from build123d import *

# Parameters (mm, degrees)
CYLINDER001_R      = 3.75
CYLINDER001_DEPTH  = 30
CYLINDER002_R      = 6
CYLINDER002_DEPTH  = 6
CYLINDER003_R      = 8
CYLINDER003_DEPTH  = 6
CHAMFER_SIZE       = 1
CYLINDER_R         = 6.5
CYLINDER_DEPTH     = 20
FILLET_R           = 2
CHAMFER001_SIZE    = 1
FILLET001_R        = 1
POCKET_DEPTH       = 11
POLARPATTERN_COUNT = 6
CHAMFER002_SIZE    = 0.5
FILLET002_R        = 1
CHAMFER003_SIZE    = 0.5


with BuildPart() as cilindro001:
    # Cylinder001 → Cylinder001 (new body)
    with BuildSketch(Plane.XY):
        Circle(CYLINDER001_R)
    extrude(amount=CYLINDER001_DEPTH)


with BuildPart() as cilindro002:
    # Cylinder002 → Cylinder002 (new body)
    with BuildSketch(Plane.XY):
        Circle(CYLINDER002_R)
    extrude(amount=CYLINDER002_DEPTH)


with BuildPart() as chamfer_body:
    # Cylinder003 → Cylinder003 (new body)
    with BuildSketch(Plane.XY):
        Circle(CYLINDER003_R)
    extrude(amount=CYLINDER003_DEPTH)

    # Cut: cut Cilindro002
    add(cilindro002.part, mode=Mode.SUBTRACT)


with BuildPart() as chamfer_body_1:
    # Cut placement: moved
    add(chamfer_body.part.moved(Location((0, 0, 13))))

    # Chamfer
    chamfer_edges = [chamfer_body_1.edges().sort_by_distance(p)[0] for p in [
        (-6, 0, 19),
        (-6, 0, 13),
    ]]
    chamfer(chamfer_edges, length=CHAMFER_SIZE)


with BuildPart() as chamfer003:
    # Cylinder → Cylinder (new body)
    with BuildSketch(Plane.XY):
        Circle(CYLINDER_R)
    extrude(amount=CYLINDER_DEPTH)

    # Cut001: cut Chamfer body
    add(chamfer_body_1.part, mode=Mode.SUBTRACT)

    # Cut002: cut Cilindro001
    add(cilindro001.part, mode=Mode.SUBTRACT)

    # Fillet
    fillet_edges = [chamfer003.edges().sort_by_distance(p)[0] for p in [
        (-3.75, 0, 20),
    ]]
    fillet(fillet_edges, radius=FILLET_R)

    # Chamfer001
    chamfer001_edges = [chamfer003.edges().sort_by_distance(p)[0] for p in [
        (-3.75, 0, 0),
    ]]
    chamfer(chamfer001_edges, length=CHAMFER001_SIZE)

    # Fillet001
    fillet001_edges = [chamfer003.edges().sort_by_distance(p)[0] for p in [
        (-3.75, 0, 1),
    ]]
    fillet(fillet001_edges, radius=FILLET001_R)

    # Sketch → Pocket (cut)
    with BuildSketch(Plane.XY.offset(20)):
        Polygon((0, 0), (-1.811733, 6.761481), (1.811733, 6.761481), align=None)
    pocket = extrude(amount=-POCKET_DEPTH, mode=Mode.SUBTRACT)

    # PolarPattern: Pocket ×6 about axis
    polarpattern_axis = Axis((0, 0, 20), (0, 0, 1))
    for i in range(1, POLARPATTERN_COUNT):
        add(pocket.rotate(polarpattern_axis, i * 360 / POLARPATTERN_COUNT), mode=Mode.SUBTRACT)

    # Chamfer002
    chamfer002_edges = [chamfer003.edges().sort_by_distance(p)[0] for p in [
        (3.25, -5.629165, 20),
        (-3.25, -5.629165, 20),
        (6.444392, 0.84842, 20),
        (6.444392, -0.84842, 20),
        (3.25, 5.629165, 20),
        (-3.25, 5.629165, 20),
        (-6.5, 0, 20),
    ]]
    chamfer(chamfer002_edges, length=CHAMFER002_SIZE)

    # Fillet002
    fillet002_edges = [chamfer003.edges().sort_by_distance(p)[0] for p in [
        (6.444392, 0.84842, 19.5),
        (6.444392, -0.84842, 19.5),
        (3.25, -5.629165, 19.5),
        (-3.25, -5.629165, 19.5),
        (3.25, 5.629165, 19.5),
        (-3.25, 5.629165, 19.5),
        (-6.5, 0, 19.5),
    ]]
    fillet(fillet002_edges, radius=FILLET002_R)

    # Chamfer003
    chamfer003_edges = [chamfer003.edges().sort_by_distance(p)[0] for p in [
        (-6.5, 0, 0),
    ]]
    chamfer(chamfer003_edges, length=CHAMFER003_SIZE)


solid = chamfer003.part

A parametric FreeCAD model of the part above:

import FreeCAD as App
import Part
import Sketcher
Q = App.Units.Quantity


def edges_at(feature, points):
    """Names of the edges that pass closest to the given points."""
    edges = feature.Shape.Edges
    near = lambda p: min(range(len(edges)), key=lambda i: edges[i].distToShape(Part.Vertex(*p))[0])
    return sorted({f"Edge{near(p) + 1}" for p in points})

doc = App.newDocument("Part")
body = doc.addObject("PartDesign::Body", "Body")

# Sketch on XY plane
sketch1 = body.newObject("Sketcher::SketchObject", "Sketch")
sketch1.AttachmentSupport = (doc.getObject("XY_Plane"), [""])
sketch1.MapMode = "FlatFace"
sketch1.addGeometry(Part.Circle(App.Vector(0, 0, 0), App.Vector(0, 0, 1), 3.75), False)
sketch1.addConstraint([
    Sketcher.Constraint("Coincident", 0, 3, -1, 1),
    Sketcher.Constraint("Diameter", 0, 7.5),
])
pad1 = body.newObject("PartDesign::Pad", "Pad")
pad1.Profile = sketch1
pad1.Length = 30
body2 = doc.addObject("PartDesign::Body", "Body001")

# Sketch on XY plane
sketch2 = body2.newObject("Sketcher::SketchObject", "Sketch001")
sketch2.AttachmentSupport = (doc.getObject("XY_Plane001"), [""])
sketch2.MapMode = "FlatFace"
sketch2.addGeometry(Part.Circle(App.Vector(0, 0, 0), App.Vector(0, 0, 1), 6), False)
sketch2.addConstraint([
    Sketcher.Constraint("Coincident", 0, 3, -1, 1),
    Sketcher.Constraint("Diameter", 0, 12.0),
])
pad2 = body2.newObject("PartDesign::Pad", "Pad001")
pad2.Profile = sketch2
pad2.Length = 6
body3 = doc.addObject("PartDesign::Body", "Body002")

# Sketch on XY plane
sketch3 = body3.newObject("Sketcher::SketchObject", "Sketch002")
sketch3.AttachmentSupport = (doc.getObject("XY_Plane002"), [""])
sketch3.MapMode = "FlatFace"
sketch3.addGeometry(Part.Circle(App.Vector(0, 0, 0), App.Vector(0, 0, 1), 8), False)
sketch3.addConstraint([
    Sketcher.Constraint("Coincident", 0, 3, -1, 1),
    Sketcher.Constraint("Diameter", 0, 16.0),
])
pad3 = body3.newObject("PartDesign::Pad", "Pad002")
pad3.Profile = sketch3
pad3.Length = 6
doc.recompute()

boolean = body3.newObject("PartDesign::Boolean", "Boolean")
boolean.Type = "Cut"
boolean.addObjects([body2])
body4 = doc.addObject("PartDesign::Body", "Body003")
doc.recompute()

body3.Placement = App.Placement(App.Vector(0, 0, 13), App.Rotation(App.Vector(0, 0, 1), 0))
boolean2 = body4.newObject("PartDesign::Boolean", "Boolean001")
boolean2.Type = "Fuse"
boolean2.addObjects([body3])
doc.recompute()

chamfer = body4.newObject("PartDesign::Chamfer", "Chamfer")
chamfer.Base = (boolean2, edges_at(boolean2, [(-6, 0, 19), (-6, 0, 13)]))
chamfer.Size = 1
body5 = doc.addObject("PartDesign::Body", "Body004")

# Sketch on XY plane
sketch4 = body5.newObject("Sketcher::SketchObject", "Sketch003")
sketch4.AttachmentSupport = (doc.getObject("XY_Plane004"), [""])
sketch4.MapMode = "FlatFace"
sketch4.addGeometry(Part.Circle(App.Vector(0, 0, 0), App.Vector(0, 0, 1), 6.5), False)
sketch4.addConstraint([
    Sketcher.Constraint("Coincident", 0, 3, -1, 1),
    Sketcher.Constraint("Diameter", 0, 13.0),
])
pad4 = body5.newObject("PartDesign::Pad", "Pad003")
pad4.Profile = sketch4
pad4.Length = 20
doc.recompute()

boolean3 = body5.newObject("PartDesign::Boolean", "Boolean002")
boolean3.Type = "Cut"
boolean3.addObjects([body4])
doc.recompute()

boolean4 = body5.newObject("PartDesign::Boolean", "Boolean003")
boolean4.Type = "Cut"
boolean4.addObjects([body])
doc.recompute()

fillet = body5.newObject("PartDesign::Fillet", "Fillet")
fillet.Base = (boolean4, edges_at(boolean4, [(-3.75, 0, 20)]))
fillet.Radius = 2
doc.recompute()

chamfer2 = body5.newObject("PartDesign::Chamfer", "Chamfer001")
chamfer2.Base = (fillet, edges_at(fillet, [(-3.75, 0, 0)]))
chamfer2.Size = 1
doc.recompute()

fillet2 = body5.newObject("PartDesign::Fillet", "Fillet001")
fillet2.Base = (chamfer2, edges_at(chamfer2, [(-3.75, 0, 1)]))
fillet2.Radius = 1

# Sketch on XY plane
sketch5 = body5.newObject("Sketcher::SketchObject", "Sketch004")
sketch5.AttachmentSupport = (doc.getObject("XY_Plane004"), [""])
sketch5.MapMode = "FlatFace"
sketch5.AttachmentOffset = App.Placement(App.Vector(0, 0, 20), App.Rotation())
sketch5.addGeometry([
    Part.LineSegment(App.Vector(-1.811733, 6.761481, 0), App.Vector(0, 0, 0)),
    Part.LineSegment(App.Vector(0, 0, 0), App.Vector(1.811733, 6.761481, 0)),
    Part.LineSegment(App.Vector(1.811733, 6.761481, 0), App.Vector(-1.811733, 6.761481, 0)),
], False)
sketch5.addConstraint([
    Sketcher.Constraint("Coincident", 0, 2, 1, 1),
    Sketcher.Constraint("Coincident", 1, 2, 2, 1),
    Sketcher.Constraint("Coincident", 2, 2, 0, 1),
    Sketcher.Constraint("Horizontal", 2),
    Sketcher.Constraint("Coincident", 0, 2, -1, 1),
    Sketcher.Constraint("Equal", 0, 1),
    Sketcher.Constraint("Angle", 0, Q("-75.000003 deg")),
    Sketcher.Constraint("Distance", 0, 7.0),
])
pocket1 = body5.newObject("PartDesign::Pocket", "Pocket")
pocket1.Profile = sketch5
pocket1.Length = 11
doc.recompute()

polarpattern = body5.newObject("PartDesign::PolarPattern", "PolarPattern")
polarpattern.Originals = [pocket1]
polarpattern.Axis = (doc.getObject("Z_Axis004"), [""])
polarpattern.Angle = 360
polarpattern.Occurrences = 6
body5.Tip = polarpattern
doc.recompute()

chamfer3 = body5.newObject("PartDesign::Chamfer", "Chamfer002")
chamfer3.Base = (polarpattern, edges_at(polarpattern, [
    (3.25, -5.629, 20),
    (-3.25, -5.629, 20),
    (6.5, 0, 20),
    (6.5, 0, 20),
    (3.25, 5.629, 20),
    (-3.25, 5.629, 20),
    (-6.5, 0, 20),
]))
chamfer3.Size = 0.5
doc.recompute()

fillet3 = body5.newObject("PartDesign::Fillet", "Fillet002")
fillet3.Base = (chamfer3, edges_at(chamfer3, [
    (6.5, 0, 19.5),
    (6.5, 0, 19.5),
    (3.25, -5.629, 19.5),
    (-3.25, -5.629, 19.5),
    (3.25, 5.629, 19.5),
    (-3.25, 5.629, 19.5),
    (-6.5, 0, 19.5),
]))
fillet3.Radius = 1
doc.recompute()

chamfer4 = body5.newObject("PartDesign::Chamfer", "Chamfer003")
chamfer4.Base = (fillet3, edges_at(fillet3, [(-6.5, 0, 0)]))
chamfer4.Size = 0.5

doc.recompute()
